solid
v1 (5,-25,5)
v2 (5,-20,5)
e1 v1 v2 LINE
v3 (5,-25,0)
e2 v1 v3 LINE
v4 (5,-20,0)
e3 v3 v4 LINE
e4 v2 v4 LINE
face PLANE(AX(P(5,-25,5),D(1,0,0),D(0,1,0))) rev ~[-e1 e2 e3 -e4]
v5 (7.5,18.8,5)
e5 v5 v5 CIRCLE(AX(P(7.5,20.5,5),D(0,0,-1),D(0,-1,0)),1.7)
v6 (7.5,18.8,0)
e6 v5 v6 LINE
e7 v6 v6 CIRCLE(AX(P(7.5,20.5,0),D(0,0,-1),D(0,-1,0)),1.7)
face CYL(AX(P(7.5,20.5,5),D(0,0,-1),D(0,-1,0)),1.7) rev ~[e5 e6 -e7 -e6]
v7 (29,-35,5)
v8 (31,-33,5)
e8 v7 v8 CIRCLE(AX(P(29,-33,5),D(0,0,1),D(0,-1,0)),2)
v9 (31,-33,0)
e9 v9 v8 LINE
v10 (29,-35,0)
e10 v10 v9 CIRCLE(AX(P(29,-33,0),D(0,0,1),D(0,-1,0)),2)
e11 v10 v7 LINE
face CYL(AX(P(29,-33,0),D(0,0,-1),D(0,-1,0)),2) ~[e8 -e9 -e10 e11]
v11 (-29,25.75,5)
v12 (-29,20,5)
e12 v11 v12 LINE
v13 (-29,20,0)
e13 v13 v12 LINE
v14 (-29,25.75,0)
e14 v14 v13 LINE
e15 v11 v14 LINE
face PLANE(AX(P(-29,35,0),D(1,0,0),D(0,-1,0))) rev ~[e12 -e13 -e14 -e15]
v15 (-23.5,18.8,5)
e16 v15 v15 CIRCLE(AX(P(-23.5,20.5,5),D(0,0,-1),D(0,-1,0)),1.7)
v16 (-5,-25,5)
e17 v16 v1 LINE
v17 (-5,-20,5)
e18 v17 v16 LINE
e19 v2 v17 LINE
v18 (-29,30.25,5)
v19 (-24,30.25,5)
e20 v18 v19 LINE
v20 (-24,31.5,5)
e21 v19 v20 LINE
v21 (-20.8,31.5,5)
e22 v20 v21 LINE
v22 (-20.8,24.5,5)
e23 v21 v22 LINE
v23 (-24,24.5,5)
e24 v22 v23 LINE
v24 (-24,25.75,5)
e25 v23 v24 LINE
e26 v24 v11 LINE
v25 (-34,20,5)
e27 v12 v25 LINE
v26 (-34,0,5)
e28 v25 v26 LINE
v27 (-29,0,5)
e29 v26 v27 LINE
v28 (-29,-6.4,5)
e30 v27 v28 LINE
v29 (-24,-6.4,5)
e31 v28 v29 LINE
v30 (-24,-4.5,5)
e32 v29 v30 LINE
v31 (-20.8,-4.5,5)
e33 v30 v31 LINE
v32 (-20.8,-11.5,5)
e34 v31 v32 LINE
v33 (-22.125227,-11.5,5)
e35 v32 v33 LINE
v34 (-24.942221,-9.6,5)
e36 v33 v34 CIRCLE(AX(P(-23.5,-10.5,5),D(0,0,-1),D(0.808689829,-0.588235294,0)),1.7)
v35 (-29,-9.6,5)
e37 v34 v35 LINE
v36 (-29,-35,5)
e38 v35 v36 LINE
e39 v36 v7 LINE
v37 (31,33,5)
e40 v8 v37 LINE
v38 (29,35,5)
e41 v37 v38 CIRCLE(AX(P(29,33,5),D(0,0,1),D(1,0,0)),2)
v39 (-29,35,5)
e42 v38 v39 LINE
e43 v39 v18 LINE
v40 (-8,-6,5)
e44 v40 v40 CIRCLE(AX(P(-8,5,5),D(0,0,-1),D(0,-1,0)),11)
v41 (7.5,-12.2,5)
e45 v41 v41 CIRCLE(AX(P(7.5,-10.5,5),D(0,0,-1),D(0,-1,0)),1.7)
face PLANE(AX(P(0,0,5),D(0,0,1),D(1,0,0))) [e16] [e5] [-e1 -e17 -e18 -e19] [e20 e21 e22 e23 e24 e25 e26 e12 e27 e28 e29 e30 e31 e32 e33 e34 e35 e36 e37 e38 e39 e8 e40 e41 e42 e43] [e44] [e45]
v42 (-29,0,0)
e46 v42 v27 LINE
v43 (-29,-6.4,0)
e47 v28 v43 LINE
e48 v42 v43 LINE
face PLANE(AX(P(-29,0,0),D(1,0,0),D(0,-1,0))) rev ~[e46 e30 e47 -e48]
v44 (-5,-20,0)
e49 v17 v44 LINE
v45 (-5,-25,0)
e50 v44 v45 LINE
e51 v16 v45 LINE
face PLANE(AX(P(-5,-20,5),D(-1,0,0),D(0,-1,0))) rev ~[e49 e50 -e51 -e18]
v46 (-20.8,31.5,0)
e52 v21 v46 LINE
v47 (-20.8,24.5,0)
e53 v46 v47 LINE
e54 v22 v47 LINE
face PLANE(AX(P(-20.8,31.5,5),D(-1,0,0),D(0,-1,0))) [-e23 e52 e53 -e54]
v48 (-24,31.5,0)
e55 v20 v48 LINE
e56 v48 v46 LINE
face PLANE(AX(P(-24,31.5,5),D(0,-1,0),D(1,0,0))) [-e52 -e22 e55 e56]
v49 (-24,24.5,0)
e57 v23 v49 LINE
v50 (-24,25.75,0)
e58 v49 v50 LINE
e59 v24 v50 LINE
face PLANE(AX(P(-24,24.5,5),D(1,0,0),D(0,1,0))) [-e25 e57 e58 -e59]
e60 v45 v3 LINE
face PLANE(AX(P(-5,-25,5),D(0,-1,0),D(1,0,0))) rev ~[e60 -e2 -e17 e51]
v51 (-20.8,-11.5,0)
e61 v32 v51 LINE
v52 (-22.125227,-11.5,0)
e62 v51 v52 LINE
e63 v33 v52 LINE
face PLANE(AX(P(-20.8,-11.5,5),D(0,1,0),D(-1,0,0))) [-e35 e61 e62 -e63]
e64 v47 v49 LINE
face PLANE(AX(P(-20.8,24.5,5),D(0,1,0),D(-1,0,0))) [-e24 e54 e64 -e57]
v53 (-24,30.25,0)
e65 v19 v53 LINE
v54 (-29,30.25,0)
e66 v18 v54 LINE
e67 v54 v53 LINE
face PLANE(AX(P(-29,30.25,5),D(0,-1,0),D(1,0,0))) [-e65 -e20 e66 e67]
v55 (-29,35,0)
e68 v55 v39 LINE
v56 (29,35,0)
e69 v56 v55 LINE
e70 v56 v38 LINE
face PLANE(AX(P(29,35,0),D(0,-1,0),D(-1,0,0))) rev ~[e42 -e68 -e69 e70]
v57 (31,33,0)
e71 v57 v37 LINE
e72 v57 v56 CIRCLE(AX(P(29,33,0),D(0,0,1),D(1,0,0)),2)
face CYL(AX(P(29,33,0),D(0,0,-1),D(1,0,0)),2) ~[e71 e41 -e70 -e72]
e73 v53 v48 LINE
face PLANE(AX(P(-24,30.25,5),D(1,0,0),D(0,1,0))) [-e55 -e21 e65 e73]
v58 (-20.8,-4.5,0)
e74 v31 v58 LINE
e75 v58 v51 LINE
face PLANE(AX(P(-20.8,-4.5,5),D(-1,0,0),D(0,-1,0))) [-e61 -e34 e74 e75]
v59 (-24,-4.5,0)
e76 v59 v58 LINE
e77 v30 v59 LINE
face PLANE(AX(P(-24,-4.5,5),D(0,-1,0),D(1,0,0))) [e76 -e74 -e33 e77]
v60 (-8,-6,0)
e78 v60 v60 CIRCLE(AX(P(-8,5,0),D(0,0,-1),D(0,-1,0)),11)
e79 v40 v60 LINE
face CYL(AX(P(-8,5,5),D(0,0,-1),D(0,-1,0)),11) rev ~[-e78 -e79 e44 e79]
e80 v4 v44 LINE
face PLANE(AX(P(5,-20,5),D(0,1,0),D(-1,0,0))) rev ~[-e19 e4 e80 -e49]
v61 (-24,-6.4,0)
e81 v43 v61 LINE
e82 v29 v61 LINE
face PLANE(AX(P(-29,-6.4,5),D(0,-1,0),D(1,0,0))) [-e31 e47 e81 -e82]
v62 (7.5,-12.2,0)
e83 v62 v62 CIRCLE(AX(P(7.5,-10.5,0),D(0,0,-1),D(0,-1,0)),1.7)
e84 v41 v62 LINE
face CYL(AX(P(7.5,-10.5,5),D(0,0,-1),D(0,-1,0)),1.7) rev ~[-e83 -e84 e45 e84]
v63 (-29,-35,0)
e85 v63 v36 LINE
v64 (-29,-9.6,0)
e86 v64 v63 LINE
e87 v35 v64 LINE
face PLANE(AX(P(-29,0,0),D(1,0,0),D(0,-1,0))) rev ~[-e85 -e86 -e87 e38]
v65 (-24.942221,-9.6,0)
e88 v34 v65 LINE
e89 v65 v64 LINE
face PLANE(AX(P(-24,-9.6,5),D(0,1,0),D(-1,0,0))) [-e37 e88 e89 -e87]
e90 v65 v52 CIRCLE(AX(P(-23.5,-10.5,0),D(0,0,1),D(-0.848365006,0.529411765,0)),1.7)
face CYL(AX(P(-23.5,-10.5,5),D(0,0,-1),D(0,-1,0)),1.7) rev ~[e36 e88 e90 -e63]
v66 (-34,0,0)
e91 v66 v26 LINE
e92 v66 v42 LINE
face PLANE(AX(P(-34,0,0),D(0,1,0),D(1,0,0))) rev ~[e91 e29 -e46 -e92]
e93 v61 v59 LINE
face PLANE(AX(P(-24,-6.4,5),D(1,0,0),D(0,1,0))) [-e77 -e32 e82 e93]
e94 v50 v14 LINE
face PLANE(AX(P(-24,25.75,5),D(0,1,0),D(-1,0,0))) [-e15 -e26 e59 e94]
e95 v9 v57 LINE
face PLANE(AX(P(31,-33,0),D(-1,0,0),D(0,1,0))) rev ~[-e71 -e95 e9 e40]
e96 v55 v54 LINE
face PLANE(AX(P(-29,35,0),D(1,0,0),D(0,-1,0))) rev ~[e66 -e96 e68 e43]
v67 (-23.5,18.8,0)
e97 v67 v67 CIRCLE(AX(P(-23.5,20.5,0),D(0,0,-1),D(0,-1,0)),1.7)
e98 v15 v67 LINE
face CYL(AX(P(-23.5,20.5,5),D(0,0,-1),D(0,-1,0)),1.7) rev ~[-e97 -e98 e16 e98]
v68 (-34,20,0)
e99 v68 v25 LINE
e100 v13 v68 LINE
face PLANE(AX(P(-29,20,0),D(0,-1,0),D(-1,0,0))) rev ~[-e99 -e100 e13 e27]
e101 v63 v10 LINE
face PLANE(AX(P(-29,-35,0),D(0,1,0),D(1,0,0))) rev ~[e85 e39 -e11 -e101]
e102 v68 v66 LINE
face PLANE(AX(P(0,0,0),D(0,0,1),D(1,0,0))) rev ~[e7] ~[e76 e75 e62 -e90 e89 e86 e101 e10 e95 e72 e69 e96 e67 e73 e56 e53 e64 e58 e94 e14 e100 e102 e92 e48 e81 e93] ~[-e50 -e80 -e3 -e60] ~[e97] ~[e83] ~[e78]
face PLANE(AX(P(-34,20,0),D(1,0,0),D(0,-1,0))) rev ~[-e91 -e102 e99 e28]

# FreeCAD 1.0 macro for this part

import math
import FreeCAD as App
import Part
import Sketcher

V = App.Vector

doc = App.newDocument("Part")
body = doc.addObject("PartDesign::Body", "Body")

sketch1 = body.newObject("Sketcher::SketchObject", "Sketch")
sketch1.AttachmentSupport = (doc.getObject("XY_Plane"), [""])
sketch1.MapMode = "FlatFace"
sketch1.addGeometry([
    Part.ArcOfCircle(Part.Circle(V(29, 33, 0), V(0, 0, 1), 2), math.radians(0), math.radians(90)),
    Part.LineSegment(V(29, 35, 0), V(-29, 35, 0)),
    Part.LineSegment(V(-29, 35, 0), V(-29, 20, 0)),
    Part.LineSegment(V(-29, 20, 0), V(-34, 20, 0)),
    Part.LineSegment(V(-34, 20, 0), V(-34, 0, 0)),
    Part.LineSegment(V(-34, 0, 0), V(-29, 0, 0)),
    Part.LineSegment(V(-29, 0, 0), V(-29, -35, 0)),
    Part.LineSegment(V(-29, -35, 0), V(29, -35, 0)),
    Part.ArcOfCircle(Part.Circle(V(29, -33, 0), V(0, 0, 1), 2), math.radians(-90), math.radians(0)),
    Part.LineSegment(V(31, -33, 0), V(31, 33, 0)),
], False)
sketch1.addConstraint([
    Sketcher.Constraint("Tangent", 0, 2, 1, 1),
    Sketcher.Constraint("Coincident", 1, 2, 2, 1),
    Sketcher.Constraint("Coincident", 2, 2, 3, 1),
    Sketcher.Constraint("Coincident", 3, 2, 4, 1),
    Sketcher.Constraint("Coincident", 4, 2, 5, 1),
    Sketcher.Constraint("Coincident", 5, 2, 6, 1),
    Sketcher.Constraint("Coincident", 6, 2, 7, 1),
    Sketcher.Constraint("Tangent", 7, 2, 8, 1),
    Sketcher.Constraint("Tangent", 8, 2, 9, 1),
    Sketcher.Constraint("Tangent", 9, 2, 0, 1),
    Sketcher.Constraint("Horizontal", 1),
    Sketcher.Constraint("Vertical", 2),
    Sketcher.Constraint("Horizontal", 3),
    Sketcher.Constraint("Vertical", 4),
    Sketcher.Constraint("Horizontal", 5),
    Sketcher.Constraint("Vertical", 6),
    Sketcher.Constraint("Horizontal", 7),
    Sketcher.Constraint("Vertical", 9),
    Sketcher.Constraint("Equal", 0, 8),
    Sketcher.Constraint("Symmetric", 0, 2, 6, 2, -1, 1),
    Sketcher.Constraint("PointOnObject", 4, 2, -1),
    Sketcher.Constraint("Vertical", 2, 2, 5, 2),
    Sketcher.Constraint("Radius", 0, 2.0),
    Sketcher.Constraint("DistanceX", 3, 2, 3, 1, 5.0),
    Sketcher.Constraint("DistanceY", 2, 2, 2, 1, 15.0),
    Sketcher.Constraint("DistanceY", 4, 2, 4, 1, 20.0),
    Sketcher.Constraint("DistanceX", 6, 2, 8, 2, 60.0),
])
pad1 = body.newObject("PartDesign::Pad", "Pad")
pad1.Profile = sketch1
pad1.Length = 5

sketch2 = body.newObject("Sketcher::SketchObject", "Sketch001")
sketch2.AttachmentSupport = (doc.getObject("XY_Plane"), [""])
sketch2.MapMode = "FlatFace"
sketch2.AttachmentOffset = App.Placement(V(0, 0, 5), App.Rotation())
sketch2.addGeometry(Part.Circle(V(-8, 5, 0), V(0, 0, 1), 11), False)
sketch2.addConstraint([
    Sketcher.Constraint("Diameter", 0, 22.0),
    Sketcher.Constraint("DistanceX", 0, 3, -1, 1, 8.0),
    Sketcher.Constraint("DistanceY", -1, 1, 0, 3, 5.0),
])
doc.recompute()
hole = body.newObject("PartDesign::Hole", "Hole")
hole.Profile = sketch2
hole.ThreadType = "None"
hole.Diameter = 22
hole.DepthType = "Dimension"
hole.Depth = 8
hole.DrillPoint = "Angled"
hole.DrillPointAngle = 118

sketch3 = body.newObject("Sketcher::SketchObject", "Sketch002")
sketch3.AttachmentSupport = (doc.getObject("XY_Plane"), [""])
sketch3.MapMode = "FlatFace"
sketch3.AttachmentOffset = App.Placement(V(0, 0, 5), App.Rotation())
sketch3.addGeometry([
    Part.Circle(V(-23.5, 20.5, 0), V(0, 0, 1), 1.7),
    Part.Circle(V(7.5, 20.5, 0), V(0, 0, 1), 1.7),
    Part.Circle(V(7.5, -10.5, 0), V(0, 0, 1), 1.7),
    Part.Circle(V(-23.5, -10.5, 0), V(0, 0, 1), 1.7),
], False)
sketch3.addConstraint([
    Sketcher.Constraint("Equal", 0, 1),
    Sketcher.Constraint("Equal", 1, 2),
    Sketcher.Constraint("Equal", 2, 3),
    Sketcher.Constraint("Horizontal", 0, 3, 1, 3),
    Sketcher.Constraint("Horizontal", 2, 3, 3, 3),
    Sketcher.Constraint("Vertical", 1, 3, 2, 3),
    Sketcher.Constraint("Vertical", 0, 3, 3, 3),
    Sketcher.Constraint("Diameter", 0, 3.4),
    Sketcher.Constraint("DistanceX", 0, 3, 1, 3, 31.0),
    Sketcher.Constraint("DistanceY", 2, 3, 1, 3, 31.0),
    Sketcher.Constraint("DistanceX", 0, 3, -1, 1, 23.5),
    Sketcher.Constraint("DistanceY", -1, 1, 0, 3, 20.5),
])
doc.recompute()
hole2 = body.newObject("PartDesign::Hole", "Hole001")
hole2.Profile = sketch3
hole2.ThreadType = "None"
hole2.Diameter = 3.4
hole2.DepthType = "Dimension"
hole2.Depth = 8
hole2.DrillPoint = "Angled"
hole2.DrillPointAngle = 118

sketch4 = body.newObject("Sketcher::SketchObject", "Sketch003")
sketch4.AttachmentSupport = (doc.getObject("XY_Plane"), [""])
sketch4.MapMode = "FlatFace"
sketch4.AttachmentOffset = App.Placement(V(0, 0, 5), App.Rotation())
sketch4.addGeometry([
    Part.LineSegment(V(-29, 30.2, 0), V(-29, 25.8, 0)),
    Part.LineSegment(V(-29, 25.8, 0), V(-24, 25.8, 0)),
    Part.LineSegment(V(-24, 25.8, 0), V(-24, 24.5, 0)),
    Part.LineSegment(V(-24, 24.5, 0), V(-20.8, 24.5, 0)),
    Part.LineSegment(V(-20.8, 24.5, 0), V(-20.8, 31.5, 0)),
    Part.LineSegment(V(-20.8, 31.5, 0), V(-24, 31.5, 0)),
    Part.LineSegment(V(-24, 31.5, 0), V(-24, 30.2, 0)),
    Part.LineSegment(V(-24, 30.2, 0), V(-29, 30.2, 0)),
    Part.LineSegment(V(-24, -6.4, 0), V(-29, -6.4, 0)),
    Part.LineSegment(V(-29, -6.4, 0), V(-29, -9.6, 0)),
    Part.LineSegment(V(-29, -9.6, 0), V(-24, -9.6, 0)),
    Part.LineSegment(V(-24, -9.6, 0), V(-24, -11.5, 0)),
    Part.LineSegment(V(-24, -11.5, 0), V(-20.8, -11.5, 0)),
    Part.LineSegment(V(-20.8, -11.5, 0), V(-20.8, -4.5, 0)),
    Part.LineSegment(V(-20.8, -4.5, 0), V(-24, -4.5, 0)),
    Part.LineSegment(V(-24, -4.5, 0), V(-24, -6.4, 0)),
], False)
sketch4.addConstraint([
    Sketcher.Constraint("Coincident", 0, 2, 1, 1),
    Sketcher.Constraint("Coincident", 1, 2, 2, 1),
    Sketcher.Constraint("Coincident", 2, 2, 3, 1),
    Sketcher.Constraint("Coincident", 3, 2, 4, 1),
    Sketcher.Constraint("Coincident", 4, 2, 5, 1),
    Sketcher.Constraint("Coincident", 5, 2, 6, 1),
    Sketcher.Constraint("Coincident", 6, 2, 7, 1),
    Sketcher.Constraint("Coincident", 7, 2, 0, 1),
    Sketcher.Constraint("Coincident", 8, 2, 9, 1),
    Sketcher.Constraint("Coincident", 9, 2, 10, 1),
    Sketcher.Constraint("Coincident", 10, 2, 11, 1),
    Sketcher.Constraint("Coincident", 11, 2, 12, 1),
    Sketcher.Constraint("Coincident", 12, 2, 13, 1),
    Sketcher.Constraint("Coincident", 13, 2, 14, 1),
    Sketcher.Constraint("Coincident", 14, 2, 15, 1),
    Sketcher.Constraint("Coincident", 15, 2, 8, 1),
    Sketcher.Constraint("Vertical", 0),
    Sketcher.Constraint("Horizontal", 1),
    Sketcher.Constraint("Vertical", 2),
    Sketcher.Constraint("Horizontal", 3),
    Sketcher.Constraint("Vertical", 4),
    Sketcher.Constraint("Horizontal", 5),
    Sketcher.Constraint("Vertical", 6),
    Sketcher.Constraint("Horizontal", 7),
    Sketcher.Constraint("Horizontal", 8),
    Sketcher.Constraint("Vertical", 9),
    Sketcher.Constraint("Horizontal", 10),
    Sketcher.Constraint("Vertical", 11),
    Sketcher.Constraint("Horizontal", 12),
    Sketcher.Constraint("Vertical", 13),
    Sketcher.Constraint("Horizontal", 14),
    Sketcher.Constraint("Vertical", 15),
    Sketcher.Constraint("Vertical", 2, 2, 5, 2),
    Sketcher.Constraint("Vertical", 7, 2, 8, 2),
    Sketcher.Constraint("Vertical", 6, 2, 10, 2),
    Sketcher.Constraint("Vertical", 4, 2, 12, 2),
    Sketcher.Constraint("Vertical", 11, 2, 14, 2),
    Sketcher.Constraint("Equal", 2, 6),
    Sketcher.Constraint("Equal", 14, 9),
    Sketcher.Constraint("Equal", 4, 13),
    Sketcher.Constraint("Equal", 11, 15),
    Sketcher.Constraint("DistanceX", 1, 1, 1, 2, 5.0),
    Sketcher.Constraint("DistanceY", 4, 1, 4, 2, 7.0),
    Sketcher.Constraint("DistanceX", 3, 1, 3, 2, 3.2),
    Sketcher.Constraint("DistanceY", 0, 2, 0, 1, 4.5),
    Sketcher.Constraint("DistanceY", 13, 2, -1, 1, 4.5),
    Sketcher.Constraint("DistanceX", 0, 2, -1, 1, 29.0),
    Sketcher.Constraint("DistanceY", 11, 2, 2, 2, 36.0),
])
pocket1 = body.newObject("PartDesign::Pocket", "Pocket")
pocket1.Profile = sketch4
pocket1.Length = 5

sketch5 = body.newObject("Sketcher::SketchObject", "Sketch004")
sketch5.AttachmentSupport = (doc.getObject("XY_Plane"), [""])
sketch5.MapMode = "FlatFace"
sketch5.AttachmentOffset = App.Placement(V(0, 0, 5), App.Rotation())
sketch5.addGeometry([
    Part.LineSegment(V(-5, -20, 0), V(-5, -25, 0)),
    Part.LineSegment(V(-5, -25, 0), V(5, -25, 0)),
    Part.LineSegment(V(5, -25, 0), V(5, -20, 0)),
    Part.LineSegment(V(5, -20, 0), V(-5, -20, 0)),
], False)
sketch5.addConstraint([
    Sketcher.Constraint("Coincident", 0, 2, 1, 1),
    Sketcher.Constraint("Coincident", 1, 2, 2, 1),
    Sketcher.Constraint("Coincident", 2, 2, 3, 1),
    Sketcher.Constraint("Coincident", 3, 2, 0, 1),
    Sketcher.Constraint("Vertical", 0),
    Sketcher.Constraint("Horizontal", 1),
    Sketcher.Constraint("Vertical", 2),
    Sketcher.Constraint("Horizontal", 3),
    Sketcher.Constraint("DistanceX", 1, 1, 1, 2, 10.0),
    Sketcher.Constraint("DistanceY", 0, 2, 0, 1, 5.0),
    Sketcher.Constraint("DistanceX", 0, 2, -1, 1, 5.0),
    Sketcher.Constraint("DistanceY", 0, 2, -1, 1, 25.0),
])
pocket2 = body.newObject("PartDesign::Pocket", "Pocket001")
pocket2.Profile = sketch5
pocket2.Length = 5

doc.recompute()
